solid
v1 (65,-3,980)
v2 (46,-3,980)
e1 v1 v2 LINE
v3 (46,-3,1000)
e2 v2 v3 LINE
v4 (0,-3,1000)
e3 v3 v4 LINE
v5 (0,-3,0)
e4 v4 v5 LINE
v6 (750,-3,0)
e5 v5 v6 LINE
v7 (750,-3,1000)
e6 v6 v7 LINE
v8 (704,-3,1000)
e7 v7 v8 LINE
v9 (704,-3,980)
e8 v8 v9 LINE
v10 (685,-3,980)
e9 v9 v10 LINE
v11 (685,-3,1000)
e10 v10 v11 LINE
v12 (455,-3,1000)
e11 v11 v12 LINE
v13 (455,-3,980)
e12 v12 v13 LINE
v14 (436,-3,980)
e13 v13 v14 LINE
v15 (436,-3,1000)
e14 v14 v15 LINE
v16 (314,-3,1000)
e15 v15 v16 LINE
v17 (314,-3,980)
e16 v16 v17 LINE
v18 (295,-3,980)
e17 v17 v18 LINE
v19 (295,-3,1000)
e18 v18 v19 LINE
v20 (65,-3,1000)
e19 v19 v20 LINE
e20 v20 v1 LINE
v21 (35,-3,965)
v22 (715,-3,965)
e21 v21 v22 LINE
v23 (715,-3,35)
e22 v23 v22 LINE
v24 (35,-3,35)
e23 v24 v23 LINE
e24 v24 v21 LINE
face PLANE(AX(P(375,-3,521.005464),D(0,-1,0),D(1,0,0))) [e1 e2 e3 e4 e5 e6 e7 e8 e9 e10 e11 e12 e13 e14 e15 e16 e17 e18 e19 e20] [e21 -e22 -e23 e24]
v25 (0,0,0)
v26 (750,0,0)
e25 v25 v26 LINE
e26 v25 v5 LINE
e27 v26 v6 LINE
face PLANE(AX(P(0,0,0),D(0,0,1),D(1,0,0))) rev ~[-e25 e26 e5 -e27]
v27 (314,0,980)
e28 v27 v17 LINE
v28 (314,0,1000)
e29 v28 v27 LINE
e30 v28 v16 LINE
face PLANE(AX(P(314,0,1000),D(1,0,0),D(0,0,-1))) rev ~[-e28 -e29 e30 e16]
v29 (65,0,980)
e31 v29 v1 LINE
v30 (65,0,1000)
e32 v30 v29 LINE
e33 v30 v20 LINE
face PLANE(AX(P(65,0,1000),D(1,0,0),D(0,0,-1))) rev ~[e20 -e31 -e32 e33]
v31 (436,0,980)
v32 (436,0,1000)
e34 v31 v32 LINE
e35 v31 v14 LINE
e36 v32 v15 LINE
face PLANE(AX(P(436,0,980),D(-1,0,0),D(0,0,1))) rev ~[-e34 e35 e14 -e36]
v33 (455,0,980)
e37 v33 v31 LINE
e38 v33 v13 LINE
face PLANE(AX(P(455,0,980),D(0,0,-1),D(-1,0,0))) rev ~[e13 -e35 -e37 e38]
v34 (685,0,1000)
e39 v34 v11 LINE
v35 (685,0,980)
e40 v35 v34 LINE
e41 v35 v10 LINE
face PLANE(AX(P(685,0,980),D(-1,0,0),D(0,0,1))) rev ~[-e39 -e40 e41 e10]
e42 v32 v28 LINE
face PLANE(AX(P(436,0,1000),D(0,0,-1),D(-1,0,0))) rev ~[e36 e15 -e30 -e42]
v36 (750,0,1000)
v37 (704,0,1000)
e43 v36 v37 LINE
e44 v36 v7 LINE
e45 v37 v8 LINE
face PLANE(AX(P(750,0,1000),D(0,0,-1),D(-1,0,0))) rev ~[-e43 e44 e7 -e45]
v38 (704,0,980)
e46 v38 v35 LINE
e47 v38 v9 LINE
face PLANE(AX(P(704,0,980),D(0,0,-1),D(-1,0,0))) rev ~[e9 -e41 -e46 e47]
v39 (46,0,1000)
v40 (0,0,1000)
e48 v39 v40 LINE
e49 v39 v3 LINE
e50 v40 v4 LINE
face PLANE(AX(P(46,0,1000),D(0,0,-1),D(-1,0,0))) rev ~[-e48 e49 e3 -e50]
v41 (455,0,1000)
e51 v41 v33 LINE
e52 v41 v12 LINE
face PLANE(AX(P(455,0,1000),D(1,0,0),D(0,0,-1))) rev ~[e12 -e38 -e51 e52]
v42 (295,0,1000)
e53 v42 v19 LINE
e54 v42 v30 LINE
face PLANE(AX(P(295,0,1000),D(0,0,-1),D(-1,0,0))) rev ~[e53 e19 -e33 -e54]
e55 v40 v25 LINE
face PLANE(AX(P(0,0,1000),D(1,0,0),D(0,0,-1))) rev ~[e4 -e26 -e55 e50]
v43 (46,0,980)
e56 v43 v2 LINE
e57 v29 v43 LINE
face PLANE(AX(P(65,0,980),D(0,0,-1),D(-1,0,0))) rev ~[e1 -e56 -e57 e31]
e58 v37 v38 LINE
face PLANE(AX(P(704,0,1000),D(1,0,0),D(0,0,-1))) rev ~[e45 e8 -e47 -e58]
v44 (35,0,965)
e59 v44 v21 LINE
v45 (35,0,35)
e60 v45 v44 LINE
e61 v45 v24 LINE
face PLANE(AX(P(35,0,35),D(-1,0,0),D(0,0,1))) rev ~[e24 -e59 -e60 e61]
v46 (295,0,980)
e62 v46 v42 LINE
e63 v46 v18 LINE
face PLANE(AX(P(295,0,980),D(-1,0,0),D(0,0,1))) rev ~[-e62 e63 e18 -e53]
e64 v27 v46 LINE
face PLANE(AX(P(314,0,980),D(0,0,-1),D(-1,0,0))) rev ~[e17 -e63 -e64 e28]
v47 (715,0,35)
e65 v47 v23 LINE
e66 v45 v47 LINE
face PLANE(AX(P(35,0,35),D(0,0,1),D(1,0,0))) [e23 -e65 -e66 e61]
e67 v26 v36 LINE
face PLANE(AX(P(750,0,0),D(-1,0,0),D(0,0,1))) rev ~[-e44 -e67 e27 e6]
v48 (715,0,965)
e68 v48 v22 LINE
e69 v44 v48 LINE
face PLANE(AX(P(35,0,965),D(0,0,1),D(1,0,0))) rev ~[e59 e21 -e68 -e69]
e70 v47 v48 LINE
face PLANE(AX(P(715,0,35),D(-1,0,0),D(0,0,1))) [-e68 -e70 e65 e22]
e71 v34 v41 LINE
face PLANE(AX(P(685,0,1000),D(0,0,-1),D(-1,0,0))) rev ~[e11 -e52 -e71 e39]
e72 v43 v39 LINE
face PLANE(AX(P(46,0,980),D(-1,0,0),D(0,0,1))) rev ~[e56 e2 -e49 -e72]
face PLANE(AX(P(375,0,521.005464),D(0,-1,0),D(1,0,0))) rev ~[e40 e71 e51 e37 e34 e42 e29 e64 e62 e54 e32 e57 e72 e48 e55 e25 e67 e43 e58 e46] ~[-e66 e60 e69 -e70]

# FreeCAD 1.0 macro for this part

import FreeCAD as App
import Part
import Sketcher

V = App.Vector

doc = App.newDocument("Part")
body = doc.addObject("PartDesign::Body", "Body")

# Sketch on XZ plane
sketch1 = body.newObject("Sketcher::SketchObject", "Sketch")
sketch1.AttachmentSupport = (doc.getObject("XZ_Plane"), [""])
sketch1.MapMode = "FlatFace"
sketch1.addGeometry(Part.LineSegment(V(0, 1000, 0), V(0, 0, 0)), False)
sketch1.addGeometry(Part.LineSegment(V(0, 0, 0), V(750, 0, 0)), False)
sketch1.addGeometry(Part.LineSegment(V(750, 0, 0), V(750, 1000, 0)), False)
sketch1.addGeometry(Part.LineSegment(V(750, 1000, 0), V(704, 1000, 0)), False)
sketch1.addGeometry(Part.LineSegment(V(704, 1000, 0), V(704, 980, 0)), False)
sketch1.addGeometry(Part.LineSegment(V(704, 980, 0), V(685, 980, 0)), False)
sketch1.addGeometry(Part.LineSegment(V(685, 980, 0), V(685, 1000, 0)), False)
sketch1.addGeometry(Part.LineSegment(V(685, 1000, 0), V(455, 1000, 0)), False)
sketch1.addGeometry(Part.LineSegment(V(455, 1000, 0), V(455, 980, 0)), False)
sketch1.addGeometry(Part.LineSegment(V(455, 980, 0), V(436, 980, 0)), False)
sketch1.addGeometry(Part.LineSegment(V(436, 980, 0), V(436, 1000, 0)), False)
sketch1.addGeometry(Part.LineSegment(V(436, 1000, 0), V(314, 1000, 0)), False)
sketch1.addGeometry(Part.LineSegment(V(314, 1000, 0), V(314, 980, 0)), False)
sketch1.addGeometry(Part.LineSegment(V(314, 980, 0), V(295, 980, 0)), False)
sketch1.addGeometry(Part.LineSegment(V(295, 980, 0), V(295, 1000, 0)), False)
sketch1.addGeometry(Part.LineSegment(V(295, 1000, 0), V(65, 1000, 0)), False)
sketch1.addGeometry(Part.LineSegment(V(65, 1000, 0), V(65, 980, 0)), False)
sketch1.addGeometry(Part.LineSegment(V(65, 980, 0), V(46, 980, 0)), False)
sketch1.addGeometry(Part.LineSegment(V(46, 980, 0), V(46, 1000, 0)), False)
sketch1.addGeometry(Part.LineSegment(V(46, 1000, 0), V(0, 1000, 0)), False)
sketch1.addGeometry(Part.LineSegment(V(715, 35, 0), V(35, 35, 0)), False)
sketch1.addGeometry(Part.LineSegment(V(35, 35, 0), V(35, 965, 0)), False)
sketch1.addGeometry(Part.LineSegment(V(35, 965, 0), V(715, 965, 0)), False)
sketch1.addGeometry(Part.LineSegment(V(715, 965, 0), V(715, 35, 0)), False)
sketch1.addConstraint(Sketcher.Constraint("Coincident", 0, 2, 1, 1))
sketch1.addConstraint(Sketcher.Constraint("Coincident", 1, 2, 2, 1))
sketch1.addConstraint(Sketcher.Constraint("Coincident", 2, 2, 3, 1))
sketch1.addConstraint(Sketcher.Constraint("Coincident", 3, 2, 4, 1))
sketch1.addConstraint(Sketcher.Constraint("Coincident", 4, 2, 5, 1))
sketch1.addConstraint(Sketcher.Constraint("Coincident", 5, 2, 6, 1))
sketch1.addConstraint(Sketcher.Constraint("Coincident", 6, 2, 7, 1))
sketch1.addConstraint(Sketcher.Constraint("Coincident", 7, 2, 8, 1))
sketch1.addConstraint(Sketcher.Constraint("Coincident", 8, 2, 9, 1))
sketch1.addConstraint(Sketcher.Constraint("Coincident", 9, 2, 10, 1))
sketch1.addConstraint(Sketcher.Constraint("Coincident", 10, 2, 11, 1))
sketch1.addConstraint(Sketcher.Constraint("Coincident", 11, 2, 12, 1))
sketch1.addConstraint(Sketcher.Constraint("Coincident", 12, 2, 13, 1))
sketch1.addConstraint(Sketcher.Constraint("Coincident", 13, 2, 14, 1))
sketch1.addConstraint(Sketcher.Constraint("Coincident", 14, 2, 15, 1))
sketch1.addConstraint(Sketcher.Constraint("Coincident", 15, 2, 16, 1))
sketch1.addConstraint(Sketcher.Constraint("Coincident", 16, 2, 17, 1))
sketch1.addConstraint(Sketcher.Constraint("Coincident", 17, 2, 18, 1))
sketch1.addConstraint(Sketcher.Constraint("Coincident", 18, 2, 19, 1))
sketch1.addConstraint(Sketcher.Constraint("Coincident", 19, 2, 0, 1))
sketch1.addConstraint(Sketcher.Constraint("Coincident", 20, 2, 21, 1))
sketch1.addConstraint(Sketcher.Constraint("Coincident", 21, 2, 22, 1))
sketch1.addConstraint(Sketcher.Constraint("Coincident", 22, 2, 23, 1))
sketch1.addConstraint(Sketcher.Constraint("Coincident", 23, 2, 20, 1))
sketch1.addConstraint(Sketcher.Constraint("Vertical", 0))
sketch1.addConstraint(Sketcher.Constraint("Horizontal", 1))
sketch1.addConstraint(Sketcher.Constraint("Vertical", 2))
sketch1.addConstraint(Sketcher.Constraint("Horizontal", 3))
sketch1.addConstraint(Sketcher.Constraint("Vertical", 4))
sketch1.addConstraint(Sketcher.Constraint("Horizontal", 5))
sketch1.addConstraint(Sketcher.Constraint("Vertical", 6))
sketch1.addConstraint(Sketcher.Constraint("Horizontal", 7))
sketch1.addConstraint(Sketcher.Constraint("Vertical", 8))
sketch1.addConstraint(Sketcher.Constraint("Horizontal", 9))
sketch1.addConstraint(Sketcher.Constraint("Vertical", 10))
sketch1.addConstraint(Sketcher.Constraint("Horizontal", 11))
sketch1.addConstraint(Sketcher.Constraint("Vertical", 12))
sketch1.addConstraint(Sketcher.Constraint("Horizontal", 13))
sketch1.addConstraint(Sketcher.Constraint("Vertical", 14))
sketch1.addConstraint(Sketcher.Constraint("Horizontal", 15))
sketch1.addConstraint(Sketcher.Constraint("Vertical", 16))
sketch1.addConstraint(Sketcher.Constraint("Horizontal", 17))
sketch1.addConstraint(Sketcher.Constraint("Vertical", 18))
sketch1.addConstraint(Sketcher.Constraint("Horizontal", 19))
sketch1.addConstraint(Sketcher.Constraint("Horizontal", 20))
sketch1.addConstraint(Sketcher.Constraint("Vertical", 21))
sketch1.addConstraint(Sketcher.Constraint("Horizontal", 22))
sketch1.addConstraint(Sketcher.Constraint("Vertical", 23))
sketch1.addConstraint(Sketcher.Constraint("Coincident", 0, 2, -1, 1))
sketch1.addConstraint(Sketcher.Constraint("Horizontal", 3, 2, 6, 2))
sketch1.addConstraint(Sketcher.Constraint("Horizontal", 5, 2, 8, 2))
sketch1.addConstraint(Sketcher.Constraint("Horizontal", 7, 2, 10, 2))
sketch1.addConstraint(Sketcher.Constraint("Horizontal", 9, 2, 12, 2))
sketch1.addConstraint(Sketcher.Constraint("Horizontal", 11, 2, 14, 2))
sketch1.addConstraint(Sketcher.Constraint("Horizontal", 13, 2, 16, 2))
sketch1.addConstraint(Sketcher.Constraint("Horizontal", 15, 2, 18, 2))
sketch1.addConstraint(Sketcher.Constraint("Equal", 5, 9))
sketch1.addConstraint(Sketcher.Constraint("Equal", 9, 13))
sketch1.addConstraint(Sketcher.Constraint("Equal", 7, 15))
sketch1.addConstraint(Sketcher.Constraint("Equal", 13, 17))
sketch1.addConstraint(Sketcher.Constraint("Equal", 3, 19))
sketch1.addConstraint(Sketcher.Constraint("DistanceX", 1, 1, 1, 2, 750.0))
sketch1.addConstraint(Sketcher.Constraint("DistanceX", 3, 2, 3, 1, 46.0))
sketch1.addConstraint(Sketcher.Constraint("DistanceX", 5, 2, 5, 1, 19.0))
sketch1.addConstraint(Sketcher.Constraint("DistanceX", 7, 2, 7, 1, 230.0))
sketch1.addConstraint(Sketcher.Constraint("DistanceX", 20, 2, 20, 1, 680.0))
sketch1.addConstraint(Sketcher.Constraint("DistanceY", 0, 2, 0, 1, 1000.0))
sketch1.addConstraint(Sketcher.Constraint("DistanceY", 4, 2, 4, 1, 20.0))
sketch1.addConstraint(Sketcher.Constraint("DistanceY", 21, 1, 21, 2, 930.0))
sketch1.addConstraint(Sketcher.Constraint("DistanceX", -1, 1, 20, 2, 35.0))
sketch1.addConstraint(Sketcher.Constraint("DistanceY", -1, 1, 20, 2, 35.0))
pad1 = body.newObject("PartDesign::Pad", "Pad")
pad1.Profile = sketch1
pad1.Length = 3

doc.recompute()
